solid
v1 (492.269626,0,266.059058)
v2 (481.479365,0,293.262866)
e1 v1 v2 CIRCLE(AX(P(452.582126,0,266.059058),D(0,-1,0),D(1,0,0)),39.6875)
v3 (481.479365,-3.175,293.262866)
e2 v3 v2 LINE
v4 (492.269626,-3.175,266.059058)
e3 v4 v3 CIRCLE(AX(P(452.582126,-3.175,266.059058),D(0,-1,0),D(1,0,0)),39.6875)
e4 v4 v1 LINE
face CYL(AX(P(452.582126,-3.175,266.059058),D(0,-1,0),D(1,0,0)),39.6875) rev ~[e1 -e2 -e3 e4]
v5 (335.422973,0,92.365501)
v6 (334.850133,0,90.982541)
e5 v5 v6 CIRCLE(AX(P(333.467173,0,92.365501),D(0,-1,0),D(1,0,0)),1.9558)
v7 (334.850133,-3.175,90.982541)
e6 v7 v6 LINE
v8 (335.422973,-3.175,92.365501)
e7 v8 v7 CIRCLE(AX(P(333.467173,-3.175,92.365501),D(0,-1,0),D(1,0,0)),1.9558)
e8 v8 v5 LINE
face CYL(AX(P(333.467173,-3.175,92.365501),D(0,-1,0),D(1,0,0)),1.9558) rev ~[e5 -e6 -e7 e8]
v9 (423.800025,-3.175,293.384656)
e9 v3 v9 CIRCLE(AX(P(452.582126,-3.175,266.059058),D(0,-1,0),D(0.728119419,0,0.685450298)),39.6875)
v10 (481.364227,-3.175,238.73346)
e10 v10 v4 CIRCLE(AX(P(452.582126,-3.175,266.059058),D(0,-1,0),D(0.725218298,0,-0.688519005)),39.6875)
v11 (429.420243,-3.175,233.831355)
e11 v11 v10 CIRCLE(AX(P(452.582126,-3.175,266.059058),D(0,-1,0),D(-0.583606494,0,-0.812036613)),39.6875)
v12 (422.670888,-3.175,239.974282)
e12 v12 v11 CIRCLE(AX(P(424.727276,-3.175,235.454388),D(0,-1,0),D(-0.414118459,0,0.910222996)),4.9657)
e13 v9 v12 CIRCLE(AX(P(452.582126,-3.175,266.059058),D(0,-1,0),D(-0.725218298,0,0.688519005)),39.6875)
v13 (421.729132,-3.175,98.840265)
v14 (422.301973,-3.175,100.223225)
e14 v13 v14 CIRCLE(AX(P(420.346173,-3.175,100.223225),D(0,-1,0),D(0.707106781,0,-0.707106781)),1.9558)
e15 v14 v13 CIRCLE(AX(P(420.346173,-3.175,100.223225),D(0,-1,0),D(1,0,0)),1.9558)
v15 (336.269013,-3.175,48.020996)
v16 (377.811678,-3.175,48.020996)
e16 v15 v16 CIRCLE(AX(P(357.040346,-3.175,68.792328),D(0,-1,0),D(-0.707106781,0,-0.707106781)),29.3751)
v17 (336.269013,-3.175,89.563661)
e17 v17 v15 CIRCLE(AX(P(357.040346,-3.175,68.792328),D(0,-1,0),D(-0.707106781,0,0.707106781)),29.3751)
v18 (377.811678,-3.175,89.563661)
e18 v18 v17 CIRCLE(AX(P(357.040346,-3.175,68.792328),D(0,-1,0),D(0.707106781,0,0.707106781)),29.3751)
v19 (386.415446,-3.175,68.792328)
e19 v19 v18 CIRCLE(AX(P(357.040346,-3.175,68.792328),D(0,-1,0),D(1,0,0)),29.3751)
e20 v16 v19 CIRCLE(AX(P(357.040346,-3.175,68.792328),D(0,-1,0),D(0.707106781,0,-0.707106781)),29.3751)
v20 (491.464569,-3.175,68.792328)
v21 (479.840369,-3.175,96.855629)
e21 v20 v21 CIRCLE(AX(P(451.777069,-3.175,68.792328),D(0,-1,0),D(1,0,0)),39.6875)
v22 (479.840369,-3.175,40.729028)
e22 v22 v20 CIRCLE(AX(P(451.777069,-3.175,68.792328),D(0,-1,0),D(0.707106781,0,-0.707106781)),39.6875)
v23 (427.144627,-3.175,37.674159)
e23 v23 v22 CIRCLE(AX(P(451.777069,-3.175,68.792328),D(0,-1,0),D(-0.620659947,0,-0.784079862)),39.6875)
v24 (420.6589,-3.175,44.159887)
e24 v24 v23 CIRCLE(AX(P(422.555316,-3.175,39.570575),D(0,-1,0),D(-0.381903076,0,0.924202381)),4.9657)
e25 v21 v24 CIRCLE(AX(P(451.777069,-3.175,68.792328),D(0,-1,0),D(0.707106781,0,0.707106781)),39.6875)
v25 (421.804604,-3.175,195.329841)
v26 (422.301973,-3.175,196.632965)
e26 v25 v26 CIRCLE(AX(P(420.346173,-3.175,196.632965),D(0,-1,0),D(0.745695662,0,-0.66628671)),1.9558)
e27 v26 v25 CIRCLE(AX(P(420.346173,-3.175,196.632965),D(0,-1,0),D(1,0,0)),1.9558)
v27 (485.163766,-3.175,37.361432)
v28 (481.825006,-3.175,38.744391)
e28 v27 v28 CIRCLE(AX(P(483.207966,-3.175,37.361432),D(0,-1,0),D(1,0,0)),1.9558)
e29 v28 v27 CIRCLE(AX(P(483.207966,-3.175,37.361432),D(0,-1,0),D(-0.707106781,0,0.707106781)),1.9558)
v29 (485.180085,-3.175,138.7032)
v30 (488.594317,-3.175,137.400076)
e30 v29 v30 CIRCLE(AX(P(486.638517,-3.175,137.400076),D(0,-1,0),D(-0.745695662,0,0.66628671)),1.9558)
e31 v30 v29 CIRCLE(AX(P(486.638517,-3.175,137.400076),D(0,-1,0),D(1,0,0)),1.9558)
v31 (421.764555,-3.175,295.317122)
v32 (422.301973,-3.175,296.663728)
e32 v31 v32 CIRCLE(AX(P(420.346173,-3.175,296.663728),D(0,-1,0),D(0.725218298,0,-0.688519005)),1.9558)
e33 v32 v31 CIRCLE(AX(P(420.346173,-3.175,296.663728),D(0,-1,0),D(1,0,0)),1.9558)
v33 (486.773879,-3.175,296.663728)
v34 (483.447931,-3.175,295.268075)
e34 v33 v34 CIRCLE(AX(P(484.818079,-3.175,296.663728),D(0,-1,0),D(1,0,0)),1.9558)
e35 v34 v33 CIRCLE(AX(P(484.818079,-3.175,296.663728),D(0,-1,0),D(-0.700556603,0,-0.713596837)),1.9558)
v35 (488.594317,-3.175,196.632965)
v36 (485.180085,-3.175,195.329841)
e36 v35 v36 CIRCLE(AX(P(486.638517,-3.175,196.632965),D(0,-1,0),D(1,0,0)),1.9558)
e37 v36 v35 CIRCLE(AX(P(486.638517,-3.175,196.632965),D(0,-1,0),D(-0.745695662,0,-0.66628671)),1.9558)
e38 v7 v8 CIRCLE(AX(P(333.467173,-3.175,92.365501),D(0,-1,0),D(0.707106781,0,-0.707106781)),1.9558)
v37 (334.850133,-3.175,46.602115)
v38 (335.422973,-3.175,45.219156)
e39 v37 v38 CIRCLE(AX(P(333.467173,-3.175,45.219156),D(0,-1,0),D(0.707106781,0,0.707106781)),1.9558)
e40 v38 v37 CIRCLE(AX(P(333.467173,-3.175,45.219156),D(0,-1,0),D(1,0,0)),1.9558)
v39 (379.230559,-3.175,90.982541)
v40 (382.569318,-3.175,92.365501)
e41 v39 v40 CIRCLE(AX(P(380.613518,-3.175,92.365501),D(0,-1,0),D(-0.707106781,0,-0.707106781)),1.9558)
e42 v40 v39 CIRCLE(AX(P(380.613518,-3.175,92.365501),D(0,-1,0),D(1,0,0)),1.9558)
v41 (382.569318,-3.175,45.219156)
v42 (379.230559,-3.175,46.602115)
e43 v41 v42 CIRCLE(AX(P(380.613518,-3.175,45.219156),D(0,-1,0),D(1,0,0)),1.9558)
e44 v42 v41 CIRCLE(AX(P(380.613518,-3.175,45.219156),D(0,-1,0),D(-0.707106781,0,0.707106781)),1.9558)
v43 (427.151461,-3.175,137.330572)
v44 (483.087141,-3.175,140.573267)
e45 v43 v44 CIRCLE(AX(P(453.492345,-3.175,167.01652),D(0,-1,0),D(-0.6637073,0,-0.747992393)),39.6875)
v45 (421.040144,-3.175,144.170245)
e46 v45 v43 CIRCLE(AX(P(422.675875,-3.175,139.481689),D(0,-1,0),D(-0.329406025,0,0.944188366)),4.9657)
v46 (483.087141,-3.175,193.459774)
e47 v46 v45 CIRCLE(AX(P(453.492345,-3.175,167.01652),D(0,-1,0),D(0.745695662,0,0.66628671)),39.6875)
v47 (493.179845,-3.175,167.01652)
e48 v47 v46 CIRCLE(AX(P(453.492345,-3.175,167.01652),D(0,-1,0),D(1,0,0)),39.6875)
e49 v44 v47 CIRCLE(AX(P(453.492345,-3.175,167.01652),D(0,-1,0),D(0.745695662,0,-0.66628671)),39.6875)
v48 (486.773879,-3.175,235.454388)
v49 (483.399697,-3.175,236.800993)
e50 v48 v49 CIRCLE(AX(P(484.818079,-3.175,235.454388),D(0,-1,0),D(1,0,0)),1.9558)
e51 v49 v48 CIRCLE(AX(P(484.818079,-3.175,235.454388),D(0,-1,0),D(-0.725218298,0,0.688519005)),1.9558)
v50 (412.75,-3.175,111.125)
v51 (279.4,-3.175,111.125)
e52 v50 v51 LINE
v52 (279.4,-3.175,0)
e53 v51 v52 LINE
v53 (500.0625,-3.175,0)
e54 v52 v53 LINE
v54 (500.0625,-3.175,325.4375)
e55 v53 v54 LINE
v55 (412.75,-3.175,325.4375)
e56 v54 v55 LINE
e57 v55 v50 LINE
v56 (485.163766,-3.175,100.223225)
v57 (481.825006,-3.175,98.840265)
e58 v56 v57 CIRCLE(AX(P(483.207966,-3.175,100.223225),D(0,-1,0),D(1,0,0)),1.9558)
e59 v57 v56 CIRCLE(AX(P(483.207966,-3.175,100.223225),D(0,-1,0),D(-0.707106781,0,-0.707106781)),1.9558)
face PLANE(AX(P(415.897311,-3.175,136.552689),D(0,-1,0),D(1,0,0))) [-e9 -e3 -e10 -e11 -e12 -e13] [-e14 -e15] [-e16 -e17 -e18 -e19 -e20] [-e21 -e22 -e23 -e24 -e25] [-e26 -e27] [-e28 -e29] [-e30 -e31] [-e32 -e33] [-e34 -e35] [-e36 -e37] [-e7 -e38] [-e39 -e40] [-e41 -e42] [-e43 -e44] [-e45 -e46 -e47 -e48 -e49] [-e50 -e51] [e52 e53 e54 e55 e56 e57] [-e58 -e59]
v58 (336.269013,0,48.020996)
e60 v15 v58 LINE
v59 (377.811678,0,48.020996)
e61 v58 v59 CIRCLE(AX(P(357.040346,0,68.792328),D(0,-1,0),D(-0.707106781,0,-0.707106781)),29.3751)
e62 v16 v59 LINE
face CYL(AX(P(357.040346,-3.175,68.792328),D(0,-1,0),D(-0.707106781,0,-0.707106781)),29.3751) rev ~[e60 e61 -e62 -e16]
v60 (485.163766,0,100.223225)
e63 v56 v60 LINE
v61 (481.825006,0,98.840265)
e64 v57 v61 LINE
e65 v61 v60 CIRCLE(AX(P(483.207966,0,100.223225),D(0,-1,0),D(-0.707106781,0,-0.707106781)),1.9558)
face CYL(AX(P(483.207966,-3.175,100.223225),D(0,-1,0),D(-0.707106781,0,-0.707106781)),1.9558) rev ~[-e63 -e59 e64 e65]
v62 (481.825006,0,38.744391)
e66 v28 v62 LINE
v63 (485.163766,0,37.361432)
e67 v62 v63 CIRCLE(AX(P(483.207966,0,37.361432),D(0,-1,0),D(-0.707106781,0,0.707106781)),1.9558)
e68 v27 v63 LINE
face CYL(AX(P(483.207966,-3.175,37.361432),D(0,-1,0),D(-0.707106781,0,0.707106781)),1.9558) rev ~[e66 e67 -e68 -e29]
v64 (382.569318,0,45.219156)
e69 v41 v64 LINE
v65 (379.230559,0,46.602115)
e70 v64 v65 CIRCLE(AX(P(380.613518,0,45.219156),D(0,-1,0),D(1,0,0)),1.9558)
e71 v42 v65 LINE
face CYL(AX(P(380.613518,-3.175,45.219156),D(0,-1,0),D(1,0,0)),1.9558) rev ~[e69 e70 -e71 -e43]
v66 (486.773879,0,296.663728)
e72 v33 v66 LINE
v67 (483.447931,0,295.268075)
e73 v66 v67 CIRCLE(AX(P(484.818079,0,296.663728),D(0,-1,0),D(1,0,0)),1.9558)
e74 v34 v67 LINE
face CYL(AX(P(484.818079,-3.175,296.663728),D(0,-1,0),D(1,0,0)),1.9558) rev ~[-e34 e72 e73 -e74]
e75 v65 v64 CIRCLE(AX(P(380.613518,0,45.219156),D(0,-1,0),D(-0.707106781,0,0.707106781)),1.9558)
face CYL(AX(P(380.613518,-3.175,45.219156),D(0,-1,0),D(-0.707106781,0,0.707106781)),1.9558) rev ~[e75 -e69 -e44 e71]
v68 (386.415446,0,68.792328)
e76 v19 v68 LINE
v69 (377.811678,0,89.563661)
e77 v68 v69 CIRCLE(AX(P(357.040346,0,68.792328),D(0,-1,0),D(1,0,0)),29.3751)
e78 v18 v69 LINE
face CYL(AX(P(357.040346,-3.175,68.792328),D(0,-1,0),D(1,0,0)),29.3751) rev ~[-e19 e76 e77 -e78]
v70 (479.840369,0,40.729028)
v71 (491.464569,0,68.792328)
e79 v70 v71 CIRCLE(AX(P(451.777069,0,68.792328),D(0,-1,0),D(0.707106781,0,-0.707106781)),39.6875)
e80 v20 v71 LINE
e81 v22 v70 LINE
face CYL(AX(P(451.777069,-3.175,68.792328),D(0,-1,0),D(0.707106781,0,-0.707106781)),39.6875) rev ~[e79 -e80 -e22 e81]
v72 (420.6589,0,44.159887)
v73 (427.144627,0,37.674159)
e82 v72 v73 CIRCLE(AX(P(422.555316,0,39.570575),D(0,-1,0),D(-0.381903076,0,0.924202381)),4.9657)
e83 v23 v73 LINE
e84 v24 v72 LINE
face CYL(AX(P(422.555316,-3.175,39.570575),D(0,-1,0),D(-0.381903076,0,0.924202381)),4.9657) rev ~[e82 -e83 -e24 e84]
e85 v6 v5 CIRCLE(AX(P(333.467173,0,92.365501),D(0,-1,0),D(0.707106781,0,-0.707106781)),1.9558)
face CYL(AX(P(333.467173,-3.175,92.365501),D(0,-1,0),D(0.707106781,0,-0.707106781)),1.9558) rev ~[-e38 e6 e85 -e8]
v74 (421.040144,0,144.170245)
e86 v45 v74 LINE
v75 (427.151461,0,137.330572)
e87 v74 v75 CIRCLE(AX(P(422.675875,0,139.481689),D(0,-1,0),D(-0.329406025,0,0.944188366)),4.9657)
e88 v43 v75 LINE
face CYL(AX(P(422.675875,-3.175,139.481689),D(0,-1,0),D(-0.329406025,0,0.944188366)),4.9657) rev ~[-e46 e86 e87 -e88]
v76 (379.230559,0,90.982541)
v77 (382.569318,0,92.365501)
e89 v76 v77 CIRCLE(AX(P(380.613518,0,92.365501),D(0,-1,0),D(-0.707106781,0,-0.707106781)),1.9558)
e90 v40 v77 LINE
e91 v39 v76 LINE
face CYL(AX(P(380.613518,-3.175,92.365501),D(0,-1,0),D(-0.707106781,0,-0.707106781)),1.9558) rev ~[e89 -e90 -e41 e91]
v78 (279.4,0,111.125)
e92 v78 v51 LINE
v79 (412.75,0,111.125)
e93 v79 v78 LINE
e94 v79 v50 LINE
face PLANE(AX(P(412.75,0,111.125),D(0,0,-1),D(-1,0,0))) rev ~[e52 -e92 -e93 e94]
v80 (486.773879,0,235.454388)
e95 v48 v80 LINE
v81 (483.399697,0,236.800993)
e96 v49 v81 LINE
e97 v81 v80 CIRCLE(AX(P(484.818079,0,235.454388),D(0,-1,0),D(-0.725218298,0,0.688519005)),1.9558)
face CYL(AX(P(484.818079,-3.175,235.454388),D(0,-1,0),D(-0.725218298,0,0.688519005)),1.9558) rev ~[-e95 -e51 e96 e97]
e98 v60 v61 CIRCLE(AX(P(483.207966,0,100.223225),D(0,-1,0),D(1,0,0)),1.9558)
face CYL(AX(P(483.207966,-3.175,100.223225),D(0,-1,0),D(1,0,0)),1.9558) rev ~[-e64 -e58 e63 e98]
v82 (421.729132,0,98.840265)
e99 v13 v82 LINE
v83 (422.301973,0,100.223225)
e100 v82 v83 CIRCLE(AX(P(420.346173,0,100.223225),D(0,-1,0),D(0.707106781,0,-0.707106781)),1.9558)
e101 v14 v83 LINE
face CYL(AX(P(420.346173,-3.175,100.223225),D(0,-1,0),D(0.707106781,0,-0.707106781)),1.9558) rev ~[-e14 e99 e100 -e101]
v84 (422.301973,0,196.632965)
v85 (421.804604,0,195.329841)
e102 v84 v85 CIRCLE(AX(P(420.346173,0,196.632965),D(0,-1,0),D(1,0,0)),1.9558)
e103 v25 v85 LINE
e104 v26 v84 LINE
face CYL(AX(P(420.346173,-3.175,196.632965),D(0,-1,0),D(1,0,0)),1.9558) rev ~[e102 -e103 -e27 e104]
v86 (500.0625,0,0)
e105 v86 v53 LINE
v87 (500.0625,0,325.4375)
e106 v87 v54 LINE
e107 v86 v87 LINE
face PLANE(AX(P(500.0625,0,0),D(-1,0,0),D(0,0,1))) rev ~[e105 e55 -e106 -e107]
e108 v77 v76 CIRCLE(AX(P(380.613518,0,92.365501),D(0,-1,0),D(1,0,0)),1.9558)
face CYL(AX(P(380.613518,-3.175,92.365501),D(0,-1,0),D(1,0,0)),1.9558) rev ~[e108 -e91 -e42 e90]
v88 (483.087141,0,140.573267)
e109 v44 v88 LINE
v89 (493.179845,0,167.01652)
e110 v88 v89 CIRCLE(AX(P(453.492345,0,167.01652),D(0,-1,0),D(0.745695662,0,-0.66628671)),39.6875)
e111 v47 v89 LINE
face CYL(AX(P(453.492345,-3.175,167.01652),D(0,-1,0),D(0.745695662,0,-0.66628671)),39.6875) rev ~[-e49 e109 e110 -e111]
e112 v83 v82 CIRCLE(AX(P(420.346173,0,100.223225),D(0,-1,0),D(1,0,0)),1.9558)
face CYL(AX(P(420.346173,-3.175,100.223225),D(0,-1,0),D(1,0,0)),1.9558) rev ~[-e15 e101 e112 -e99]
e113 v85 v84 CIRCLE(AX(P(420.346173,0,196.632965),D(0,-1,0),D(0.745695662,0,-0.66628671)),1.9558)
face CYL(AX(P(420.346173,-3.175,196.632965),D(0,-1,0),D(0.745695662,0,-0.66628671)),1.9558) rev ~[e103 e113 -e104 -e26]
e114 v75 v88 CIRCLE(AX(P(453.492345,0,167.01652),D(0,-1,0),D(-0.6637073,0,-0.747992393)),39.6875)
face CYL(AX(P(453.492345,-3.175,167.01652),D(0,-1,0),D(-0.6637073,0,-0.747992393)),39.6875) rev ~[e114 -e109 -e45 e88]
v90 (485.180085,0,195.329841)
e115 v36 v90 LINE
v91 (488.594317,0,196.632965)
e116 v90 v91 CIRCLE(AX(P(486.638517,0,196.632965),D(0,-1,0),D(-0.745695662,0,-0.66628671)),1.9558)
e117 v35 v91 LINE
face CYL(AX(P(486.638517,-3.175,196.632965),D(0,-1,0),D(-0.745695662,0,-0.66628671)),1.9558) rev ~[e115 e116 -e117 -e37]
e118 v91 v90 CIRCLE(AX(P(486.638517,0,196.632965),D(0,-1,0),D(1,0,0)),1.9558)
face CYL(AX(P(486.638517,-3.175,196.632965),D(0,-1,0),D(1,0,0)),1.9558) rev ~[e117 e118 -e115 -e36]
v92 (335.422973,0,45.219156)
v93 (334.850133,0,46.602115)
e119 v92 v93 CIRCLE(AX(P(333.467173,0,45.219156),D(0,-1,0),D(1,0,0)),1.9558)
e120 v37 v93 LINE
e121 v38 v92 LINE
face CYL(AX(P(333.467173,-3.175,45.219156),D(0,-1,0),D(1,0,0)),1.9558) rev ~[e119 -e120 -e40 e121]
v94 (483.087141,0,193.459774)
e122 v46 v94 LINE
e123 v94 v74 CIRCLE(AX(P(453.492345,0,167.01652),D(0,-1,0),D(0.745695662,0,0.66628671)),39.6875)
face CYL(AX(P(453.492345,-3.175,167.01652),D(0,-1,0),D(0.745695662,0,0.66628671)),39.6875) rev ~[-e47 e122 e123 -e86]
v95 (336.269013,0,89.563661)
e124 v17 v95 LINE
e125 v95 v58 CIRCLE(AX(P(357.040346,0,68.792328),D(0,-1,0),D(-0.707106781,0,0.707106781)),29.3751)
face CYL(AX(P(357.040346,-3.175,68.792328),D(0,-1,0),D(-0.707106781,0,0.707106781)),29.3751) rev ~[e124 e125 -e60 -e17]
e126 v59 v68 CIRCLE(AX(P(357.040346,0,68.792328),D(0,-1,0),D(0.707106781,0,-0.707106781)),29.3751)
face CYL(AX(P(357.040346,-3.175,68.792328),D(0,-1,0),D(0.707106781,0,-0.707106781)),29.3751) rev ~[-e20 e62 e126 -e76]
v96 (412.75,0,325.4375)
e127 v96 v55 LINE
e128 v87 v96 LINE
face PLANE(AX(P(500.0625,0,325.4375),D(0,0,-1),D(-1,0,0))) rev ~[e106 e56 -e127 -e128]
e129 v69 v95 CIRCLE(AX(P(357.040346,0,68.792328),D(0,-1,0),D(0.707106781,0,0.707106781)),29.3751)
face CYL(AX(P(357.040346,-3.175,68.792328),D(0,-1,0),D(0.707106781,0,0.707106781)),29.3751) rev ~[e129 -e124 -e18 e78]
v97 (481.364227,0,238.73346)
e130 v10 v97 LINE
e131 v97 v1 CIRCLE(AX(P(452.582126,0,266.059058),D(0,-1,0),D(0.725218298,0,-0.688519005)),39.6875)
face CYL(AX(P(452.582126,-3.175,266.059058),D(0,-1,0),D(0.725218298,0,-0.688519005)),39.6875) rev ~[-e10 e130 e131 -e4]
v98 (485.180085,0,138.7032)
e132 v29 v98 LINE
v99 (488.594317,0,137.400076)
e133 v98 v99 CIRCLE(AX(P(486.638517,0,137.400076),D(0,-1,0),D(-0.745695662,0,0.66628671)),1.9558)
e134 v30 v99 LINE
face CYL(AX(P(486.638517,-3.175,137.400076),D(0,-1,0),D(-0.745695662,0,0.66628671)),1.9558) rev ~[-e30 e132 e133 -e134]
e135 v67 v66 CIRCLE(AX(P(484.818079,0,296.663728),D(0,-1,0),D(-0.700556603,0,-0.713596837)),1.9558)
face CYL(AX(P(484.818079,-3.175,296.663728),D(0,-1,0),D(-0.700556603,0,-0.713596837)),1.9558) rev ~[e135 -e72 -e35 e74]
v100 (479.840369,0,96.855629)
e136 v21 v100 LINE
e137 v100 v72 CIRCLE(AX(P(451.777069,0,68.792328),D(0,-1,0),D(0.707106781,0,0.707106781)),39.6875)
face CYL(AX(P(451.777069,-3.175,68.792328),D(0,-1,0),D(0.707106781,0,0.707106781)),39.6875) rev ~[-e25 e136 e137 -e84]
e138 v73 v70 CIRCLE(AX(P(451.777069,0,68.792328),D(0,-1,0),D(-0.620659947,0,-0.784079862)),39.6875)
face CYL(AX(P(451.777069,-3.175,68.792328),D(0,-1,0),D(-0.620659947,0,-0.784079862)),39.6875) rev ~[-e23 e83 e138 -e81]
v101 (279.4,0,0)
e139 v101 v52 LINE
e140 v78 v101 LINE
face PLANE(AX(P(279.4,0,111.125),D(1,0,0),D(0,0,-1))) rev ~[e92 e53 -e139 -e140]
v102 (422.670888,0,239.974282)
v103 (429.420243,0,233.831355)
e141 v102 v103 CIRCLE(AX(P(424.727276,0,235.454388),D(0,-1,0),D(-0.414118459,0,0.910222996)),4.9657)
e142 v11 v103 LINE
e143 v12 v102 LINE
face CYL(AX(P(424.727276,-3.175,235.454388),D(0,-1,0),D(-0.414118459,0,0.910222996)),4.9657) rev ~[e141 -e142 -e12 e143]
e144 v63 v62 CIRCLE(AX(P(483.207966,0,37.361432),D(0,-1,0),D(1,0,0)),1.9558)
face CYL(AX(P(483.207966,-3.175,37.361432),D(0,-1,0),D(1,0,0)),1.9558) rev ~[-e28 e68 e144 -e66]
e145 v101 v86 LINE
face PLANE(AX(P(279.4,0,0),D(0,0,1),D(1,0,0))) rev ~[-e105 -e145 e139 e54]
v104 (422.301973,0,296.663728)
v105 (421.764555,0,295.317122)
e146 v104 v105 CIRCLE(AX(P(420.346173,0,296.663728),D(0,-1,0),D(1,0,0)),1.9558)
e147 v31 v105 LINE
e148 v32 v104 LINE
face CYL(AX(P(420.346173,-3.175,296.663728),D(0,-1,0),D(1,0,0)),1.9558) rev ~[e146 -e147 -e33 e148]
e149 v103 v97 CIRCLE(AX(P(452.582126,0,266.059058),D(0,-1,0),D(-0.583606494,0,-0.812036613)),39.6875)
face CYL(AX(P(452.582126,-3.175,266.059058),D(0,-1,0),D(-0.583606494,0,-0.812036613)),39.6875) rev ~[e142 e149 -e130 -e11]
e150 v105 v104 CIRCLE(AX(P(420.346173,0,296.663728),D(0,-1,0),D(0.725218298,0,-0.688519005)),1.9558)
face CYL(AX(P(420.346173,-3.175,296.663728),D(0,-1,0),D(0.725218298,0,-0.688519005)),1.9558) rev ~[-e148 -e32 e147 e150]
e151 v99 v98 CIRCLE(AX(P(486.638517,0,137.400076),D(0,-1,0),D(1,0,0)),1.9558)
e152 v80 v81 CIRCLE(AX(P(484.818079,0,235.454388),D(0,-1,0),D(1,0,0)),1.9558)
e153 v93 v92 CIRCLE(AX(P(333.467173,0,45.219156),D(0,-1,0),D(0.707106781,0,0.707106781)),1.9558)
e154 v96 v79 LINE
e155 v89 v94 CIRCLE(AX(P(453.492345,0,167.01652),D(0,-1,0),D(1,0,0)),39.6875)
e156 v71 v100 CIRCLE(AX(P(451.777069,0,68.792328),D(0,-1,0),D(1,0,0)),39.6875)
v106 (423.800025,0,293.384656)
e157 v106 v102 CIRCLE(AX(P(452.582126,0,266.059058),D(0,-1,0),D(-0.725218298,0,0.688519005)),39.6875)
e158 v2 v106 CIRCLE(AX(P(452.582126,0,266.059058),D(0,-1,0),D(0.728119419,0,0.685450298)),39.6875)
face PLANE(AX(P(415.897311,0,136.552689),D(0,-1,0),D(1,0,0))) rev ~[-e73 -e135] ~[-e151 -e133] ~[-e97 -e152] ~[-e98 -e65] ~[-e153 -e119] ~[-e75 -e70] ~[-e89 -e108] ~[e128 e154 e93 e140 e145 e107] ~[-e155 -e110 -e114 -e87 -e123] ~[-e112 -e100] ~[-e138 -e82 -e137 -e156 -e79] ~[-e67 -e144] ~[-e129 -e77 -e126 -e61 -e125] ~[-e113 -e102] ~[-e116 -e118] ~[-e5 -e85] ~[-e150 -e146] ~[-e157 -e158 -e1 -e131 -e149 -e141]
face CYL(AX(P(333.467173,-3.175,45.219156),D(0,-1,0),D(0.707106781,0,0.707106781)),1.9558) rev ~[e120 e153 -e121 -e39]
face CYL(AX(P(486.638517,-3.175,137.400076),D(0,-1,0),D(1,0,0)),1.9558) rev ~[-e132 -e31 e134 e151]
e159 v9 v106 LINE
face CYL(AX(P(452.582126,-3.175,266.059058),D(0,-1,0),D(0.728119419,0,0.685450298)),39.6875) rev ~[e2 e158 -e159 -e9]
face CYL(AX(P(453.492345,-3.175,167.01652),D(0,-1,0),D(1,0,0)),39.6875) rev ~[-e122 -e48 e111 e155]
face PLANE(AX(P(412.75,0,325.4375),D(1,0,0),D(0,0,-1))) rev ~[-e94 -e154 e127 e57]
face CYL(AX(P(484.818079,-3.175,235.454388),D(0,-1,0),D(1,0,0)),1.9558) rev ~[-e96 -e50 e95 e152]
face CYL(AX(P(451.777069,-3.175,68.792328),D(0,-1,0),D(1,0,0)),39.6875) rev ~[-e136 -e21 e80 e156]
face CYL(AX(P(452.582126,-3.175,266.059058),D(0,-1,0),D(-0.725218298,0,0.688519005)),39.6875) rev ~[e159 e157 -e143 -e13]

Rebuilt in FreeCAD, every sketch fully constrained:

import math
import FreeCAD as App
import Part
import Sketcher
Q = App.Units.Quantity


def add_polygon(sketch, points):
    """Adds a closed chain of lines whose ends are joined by coincident constraints."""
    first, n = sketch.GeometryCount, len(points)
    for a, b in zip(points, points[1:] + points[:1]):
        sketch.addGeometry(Part.LineSegment(App.Vector(*a, 0), App.Vector(*b, 0)), False)
    for i in range(n):
        sketch.addConstraint(Sketcher.Constraint("Coincident", first + i, 2, first + (i + 1) % n, 1))

doc = App.newDocument("Part")
body = doc.addObject("PartDesign::Body", "Body")

sketch1 = doc.addObject("Sketcher::SketchObject", "Sketch")
body.addObject(sketch1)
sketch1.AttachmentSupport = (doc.XZ_Plane, [""])
sketch1.MapMode = "FlatFace"
add_polygon(sketch1, [(279, 111), (279, 0), (500, 0), (500, 325), (413, 325), (413, 111)])
sketch1.addConstraint(Sketcher.Constraint("Vertical", 0))
sketch1.addConstraint(Sketcher.Constraint("Horizontal", 1))
sketch1.addConstraint(Sketcher.Constraint("Vertical", 2))
sketch1.addConstraint(Sketcher.Constraint("Horizontal", 3))
sketch1.addConstraint(Sketcher.Constraint("Vertical", 4))
sketch1.addConstraint(Sketcher.Constraint("Horizontal", 5))
sketch1.addConstraint(Sketcher.Constraint("PointOnObject", 0, 2, -1))
sketch1.addConstraint(Sketcher.Constraint("DistanceX", -1, 1, 0, 2, Q("11 in")))
sketch1.addConstraint(Sketcher.Constraint("DistanceX", 5, 2, 5, 1, Q("5.25 in")))
sketch1.addConstraint(Sketcher.Constraint("DistanceX", 1, 1, 1, 2, Q("8.6875 in")))
sketch1.addConstraint(Sketcher.Constraint("DistanceY", 0, 2, 0, 1, Q("4.375 in")))
sketch1.addConstraint(Sketcher.Constraint("DistanceY", 2, 1, 2, 2, Q("12.8125 in")))
pad1 = doc.addObject("PartDesign::Pad", "Pad")
body.addObject(pad1)
pad1.Profile = sketch1
pad1.Length = Q("0.125 in")

sketch2 = doc.addObject("Sketcher::SketchObject", "Sketch001")
body.addObject(sketch2)
sketch2.AttachmentSupport = (doc.XZ_Plane, [""])
sketch2.MapMode = "FlatFace"
sketch2.AttachmentOffset = App.Placement(App.Vector(0, 0, 0.125 * 25.4), App.Rotation())
sketch2.addGeometry(Part.ArcOfCircle(Part.Circle(App.Vector(452.6, 266.1, 0), App.Vector(0, 0, 1), 39.7), math.radians(136), math.radians(221)), False)
sketch2.addGeometry(Part.ArcOfCircle(Part.Circle(App.Vector(424.7, 235.5, 0), App.Vector(0, 0, 1), 5), math.radians(114), math.radians(341)), False)
sketch2.addGeometry(Part.ArcOfCircle(Part.Circle(App.Vector(452.6, 266.1, 0), App.Vector(0, 0, 1), 39.7), math.radians(-126), math.radians(-44)), False)
sketch2.addGeometry(Part.ArcOfCircle(Part.Circle(App.Vector(452.6, 266.1, 0), App.Vector(0, 0, 1), 39.7), math.radians(-44), math.radians(0)), False)
sketch2.addGeometry(Part.ArcOfCircle(Part.Circle(App.Vector(452.6, 266.1, 0), App.Vector(0, 0, 1), 39.7), math.radians(0), math.radians(43)), False)
sketch2.addGeometry(Part.ArcOfCircle(Part.Circle(App.Vector(452.6, 266.1, 0), App.Vector(0, 0, 1), 39.7), math.radians(43), math.radians(136)), False)
sketch2.addGeometry(Part.ArcOfCircle(Part.Circle(App.Vector(484.8, 235.5, 0), App.Vector(0, 0, 1), 2), math.radians(0), math.radians(136)), False)
sketch2.addGeometry(Part.ArcOfCircle(Part.Circle(App.Vector(484.8, 235.5, 0), App.Vector(0, 0, 1), 2), math.radians(136), math.radians(360)), False)
sketch2.addGeometry(Part.ArcOfCircle(Part.Circle(App.Vector(420.3, 296.7, 0), App.Vector(0, 0, 1), 2), math.radians(0), math.radians(316)), False)
sketch2.addGeometry(Part.ArcOfCircle(Part.Circle(App.Vector(420.3, 296.7, 0), App.Vector(0, 0, 1), 2), math.radians(-44), math.radians(0)), False)
sketch2.addGeometry(Part.ArcOfCircle(Part.Circle(App.Vector(484.8, 296.7, 0), App.Vector(0, 0, 1), 2), math.radians(0), math.radians(226)), False)
sketch2.addGeometry(Part.ArcOfCircle(Part.Circle(App.Vector(484.8, 296.7, 0), App.Vector(0, 0, 1), 2), math.radians(-134), math.radians(0)), False)
sketch2.addGeometry(Part.ArcOfCircle(Part.Circle(App.Vector(453.5, 167, 0), App.Vector(0, 0, 1), 39.7), math.radians(42), math.radians(215)), False)
sketch2.addGeometry(Part.ArcOfCircle(Part.Circle(App.Vector(422.7, 139.5, 0), App.Vector(0, 0, 1), 5), math.radians(109), math.radians(334)), False)
sketch2.addGeometry(Part.ArcOfCircle(Part.Circle(App.Vector(453.5, 167, 0), App.Vector(0, 0, 1), 39.7), math.radians(-132), math.radians(-42)), False)
sketch2.addGeometry(Part.ArcOfCircle(Part.Circle(App.Vector(453.5, 167, 0), App.Vector(0, 0, 1), 39.7), math.radians(-42), math.radians(0)), False)
sketch2.addGeometry(Part.ArcOfCircle(Part.Circle(App.Vector(453.5, 167, 0), App.Vector(0, 0, 1), 39.7), math.radians(0), math.radians(42)), False)
sketch2.addGeometry(Part.ArcOfCircle(Part.Circle(App.Vector(486.6, 137.4, 0), App.Vector(0, 0, 1), 2), math.radians(0), math.radians(138)), False)
sketch2.addGeometry(Part.ArcOfCircle(Part.Circle(App.Vector(486.6, 137.4, 0), App.Vector(0, 0, 1), 2), math.radians(138), math.radians(360)), False)
sketch2.addGeometry(Part.ArcOfCircle(Part.Circle(App.Vector(420.3, 196.6, 0), App.Vector(0, 0, 1), 2), math.radians(0), math.radians(318)), False)
sketch2.addGeometry(Part.ArcOfCircle(Part.Circle(App.Vector(420.3, 196.6, 0), App.Vector(0, 0, 1), 2), math.radians(-42), math.radians(0)), False)
sketch2.addGeometry(Part.ArcOfCircle(Part.Circle(App.Vector(486.6, 196.6, 0), App.Vector(0, 0, 1), 2), math.radians(0), math.radians(222)), False)
sketch2.addGeometry(Part.ArcOfCircle(Part.Circle(App.Vector(486.6, 196.6, 0), App.Vector(0, 0, 1), 2), math.radians(-138), math.radians(0)), False)
sketch2.addGeometry(Part.ArcOfCircle(Part.Circle(App.Vector(451.8, 68.8, 0), App.Vector(0, 0, 1), 39.7), math.radians(45), math.radians(218)), False)
sketch2.addGeometry(Part.ArcOfCircle(Part.Circle(App.Vector(422.6, 39.6, 0), App.Vector(0, 0, 1), 5), math.radians(112), math.radians(338)), False)
sketch2.addGeometry(Part.ArcOfCircle(Part.Circle(App.Vector(451.8, 68.8, 0), App.Vector(0, 0, 1), 39.7), math.radians(-128), math.radians(-45)), False)
sketch2.addGeometry(Part.ArcOfCircle(Part.Circle(App.Vector(451.8, 68.8, 0), App.Vector(0, 0, 1), 39.7), math.radians(-45), math.radians(0)), False)
sketch2.addGeometry(Part.ArcOfCircle(Part.Circle(App.Vector(451.8, 68.8, 0), App.Vector(0, 0, 1), 39.7), math.radians(0), math.radians(45)), False)
sketch2.addGeometry(Part.ArcOfCircle(Part.Circle(App.Vector(483.2, 37.4, 0), App.Vector(0, 0, 1), 2), math.radians(0), math.radians(135)), False)
sketch2.addGeometry(Part.ArcOfCircle(Part.Circle(App.Vector(483.2, 37.4, 0), App.Vector(0, 0, 1), 2), math.radians(135), math.radians(360)), False)
sketch2.addGeometry(Part.ArcOfCircle(Part.Circle(App.Vector(420.3, 100.2, 0), App.Vector(0, 0, 1), 2), math.radians(0), math.radians(315)), False)
sketch2.addGeometry(Part.ArcOfCircle(Part.Circle(App.Vector(420.3, 100.2, 0), App.Vector(0, 0, 1), 2), math.radians(-45), math.radians(0)), False)
sketch2.addGeometry(Part.ArcOfCircle(Part.Circle(App.Vector(483.2, 100.2, 0), App.Vector(0, 0, 1), 2), math.radians(0), math.radians(225)), False)
sketch2.addGeometry(Part.ArcOfCircle(Part.Circle(App.Vector(483.2, 100.2, 0), App.Vector(0, 0, 1), 2), math.radians(-135), math.radians(0)), False)
sketch2.addGeometry(Part.ArcOfCircle(Part.Circle(App.Vector(357, 68.8, 0), App.Vector(0, 0, 1), 29.4), math.radians(-45), math.radians(0)), False)
sketch2.addGeometry(Part.ArcOfCircle(Part.Circle(App.Vector(357, 68.8, 0), App.Vector(0, 0, 1), 29.4), math.radians(0), math.radians(45)), False)
sketch2.addGeometry(Part.ArcOfCircle(Part.Circle(App.Vector(357, 68.8, 0), App.Vector(0, 0, 1), 29.4), math.radians(45), math.radians(135)), False)
sketch2.addGeometry(Part.ArcOfCircle(Part.Circle(App.Vector(357, 68.8, 0), App.Vector(0, 0, 1), 29.4), math.radians(135), math.radians(225)), False)
sketch2.addGeometry(Part.ArcOfCircle(Part.Circle(App.Vector(357, 68.8, 0), App.Vector(0, 0, 1), 29.4), math.radians(-135), math.radians(-45)), False)
sketch2.addGeometry(Part.ArcOfCircle(Part.Circle(App.Vector(380.6, 45.2, 0), App.Vector(0, 0, 1), 2), math.radians(0), math.radians(135)), False)
sketch2.addGeometry(Part.ArcOfCircle(Part.Circle(App.Vector(380.6, 45.2, 0), App.Vector(0, 0, 1), 2), math.radians(135), math.radians(360)), False)
sketch2.addGeometry(Part.ArcOfCircle(Part.Circle(App.Vector(333.5, 45.2, 0), App.Vector(0, 0, 1), 2), math.radians(0), math.radians(45)), False)
sketch2.addGeometry(Part.ArcOfCircle(Part.Circle(App.Vector(333.5, 45.2, 0), App.Vector(0, 0, 1), 2), math.radians(45), math.radians(360)), False)
sketch2.addGeometry(Part.ArcOfCircle(Part.Circle(App.Vector(333.5, 92.4, 0), App.Vector(0, 0, 1), 2), math.radians(0), math.radians(315)), False)
sketch2.addGeometry(Part.ArcOfCircle(Part.Circle(App.Vector(333.5, 92.4, 0), App.Vector(0, 0, 1), 2), math.radians(-45), math.radians(0)), False)
sketch2.addGeometry(Part.ArcOfCircle(Part.Circle(App.Vector(380.6, 92.4, 0), App.Vector(0, 0, 1), 2), math.radians(0), math.radians(225)), False)
sketch2.addGeometry(Part.ArcOfCircle(Part.Circle(App.Vector(380.6, 92.4, 0), App.Vector(0, 0, 1), 2), math.radians(-135), math.radians(0)), False)
sketch2.addConstraint(Sketcher.Constraint("Coincident", 0, 2, 1, 1))
sketch2.addConstraint(Sketcher.Constraint("Coincident", 1, 2, 2, 1))
sketch2.addConstraint(Sketcher.Constraint("Tangent", 2, 2, 3, 1))
sketch2.addConstraint(Sketcher.Constraint("Tangent", 3, 2, 4, 1))
sketch2.addConstraint(Sketcher.Constraint("Tangent", 4, 2, 5, 1))
sketch2.addConstraint(Sketcher.Constraint("Tangent", 5, 2, 0, 1))
sketch2.addConstraint(Sketcher.Constraint("Tangent", 6, 1, 7, 2))
sketch2.addConstraint(Sketcher.Constraint("Coincident", 7, 1, 6, 2))
sketch2.addConstraint(Sketcher.Constraint("Tangent", 8, 1, 9, 2))
sketch2.addConstraint(Sketcher.Constraint("Coincident", 9, 1, 8, 2))
sketch2.addConstraint(Sketcher.Constraint("Tangent", 10, 1, 11, 2))
sketch2.addConstraint(Sketcher.Constraint("Coincident", 11, 1, 10, 2))
sketch2.addConstraint(Sketcher.Constraint("Coincident", 12, 2, 13, 1))
sketch2.addConstraint(Sketcher.Constraint("Coincident", 13, 2, 14, 1))
sketch2.addConstraint(Sketcher.Constraint("Tangent", 14, 2, 15, 1))
sketch2.addConstraint(Sketcher.Constraint("Tangent", 15, 2, 16, 1))
sketch2.addConstraint(Sketcher.Constraint("Tangent", 16, 2, 12, 1))
sketch2.addConstraint(Sketcher.Constraint("Tangent", 17, 1, 18, 2))
sketch2.addConstraint(Sketcher.Constraint("Coincident", 18, 1, 17, 2))
sketch2.addConstraint(Sketcher.Constraint("Tangent", 19, 1, 20, 2))
sketch2.addConstraint(Sketcher.Constraint("Coincident", 20, 1, 19, 2))
sketch2.addConstraint(Sketcher.Constraint("Tangent", 21, 1, 22, 2))
sketch2.addConstraint(Sketcher.Constraint("Coincident", 22, 1, 21, 2))
sketch2.addConstraint(Sketcher.Constraint("Coincident", 23, 2, 24, 1))
sketch2.addConstraint(Sketcher.Constraint("Coincident", 24, 2, 25, 1))
sketch2.addConstraint(Sketcher.Constraint("Tangent", 25, 2, 26, 1))
sketch2.addConstraint(Sketcher.Constraint("Tangent", 26, 2, 27, 1))
sketch2.addConstraint(Sketcher.Constraint("Tangent", 27, 2, 23, 1))
sketch2.addConstraint(Sketcher.Constraint("Tangent", 28, 1, 29, 2))
sketch2.addConstraint(Sketcher.Constraint("Coincident", 29, 1, 28, 2))
sketch2.addConstraint(Sketcher.Constraint("Tangent", 30, 1, 31, 2))
sketch2.addConstraint(Sketcher.Constraint("Coincident", 31, 1, 30, 2))
sketch2.addConstraint(Sketcher.Constraint("Tangent", 32, 1, 33, 2))
sketch2.addConstraint(Sketcher.Constraint("Coincident", 33, 1, 32, 2))
sketch2.addConstraint(Sketcher.Constraint("Tangent", 34, 2, 35, 1))
sketch2.addConstraint(Sketcher.Constraint("Tangent", 35, 2, 36, 1))
sketch2.addConstraint(Sketcher.Constraint("Tangent", 36, 2, 37, 1))
sketch2.addConstraint(Sketcher.Constraint("Tangent", 37, 2, 38, 1))
sketch2.addConstraint(Sketcher.Constraint("Tangent", 38, 2, 34, 1))
sketch2.addConstraint(Sketcher.Constraint("Tangent", 39, 1, 40, 2))
sketch2.addConstraint(Sketcher.Constraint("Coincident", 40, 1, 39, 2))
sketch2.addConstraint(Sketcher.Constraint("Tangent", 41, 1, 42, 2))
sketch2.addConstraint(Sketcher.Constraint("Coincident", 42, 1, 41, 2))
sketch2.addConstraint(Sketcher.Constraint("Tangent", 43, 1, 44, 2))
sketch2.addConstraint(Sketcher.Constraint("Coincident", 44, 1, 43, 2))
sketch2.addConstraint(Sketcher.Constraint("Tangent", 45, 1, 46, 2))
sketch2.addConstraint(Sketcher.Constraint("Coincident", 46, 1, 45, 2))
sketch2.addConstraint(Sketcher.Constraint("Coincident", 2, 3, 0, 3))
sketch2.addConstraint(Sketcher.Constraint("Coincident", 4, 3, 0, 3))
sketch2.addConstraint(Sketcher.Constraint("Coincident", 14, 3, 12, 3))
sketch2.addConstraint(Sketcher.Constraint("Coincident", 25, 3, 23, 3))
sketch2.addConstraint(Sketcher.Constraint("Coincident", 36, 3, 34, 3))
sketch2.addConstraint(Sketcher.Constraint("Equal", 7, 8))
sketch2.addConstraint(Sketcher.Constraint("Equal", 9, 10))
sketch2.addConstraint(Sketcher.Constraint("Equal", 5, 12))
sketch2.addConstraint(Sketcher.Constraint("Equal", 1, 13))
sketch2.addConstraint(Sketcher.Constraint("Equal", 12, 14))
sketch2.addConstraint(Sketcher.Constraint("Equal", 11, 17))
sketch2.addConstraint(Sketcher.Constraint("Equal", 18, 19))
sketch2.addConstraint(Sketcher.Constraint("Equal", 20, 21))
sketch2.addConstraint(Sketcher.Constraint("Equal", 16, 23))
sketch2.addConstraint(Sketcher.Constraint("Equal", 13, 24))
sketch2.addConstraint(Sketcher.Constraint("Equal", 23, 25))
sketch2.addConstraint(Sketcher.Constraint("Equal", 22, 28))
sketch2.addConstraint(Sketcher.Constraint("Equal", 29, 30))
sketch2.addConstraint(Sketcher.Constraint("Equal", 31, 32))
sketch2.addConstraint(Sketcher.Constraint("Equal", 33, 39))
sketch2.addConstraint(Sketcher.Constraint("Equal", 40, 41))
sketch2.addConstraint(Sketcher.Constraint("Equal", 42, 43))
sketch2.addConstraint(Sketcher.Constraint("Equal", 44, 45))
sketch2.addConstraint(Sketcher.Constraint("Horizontal", 1, 3, 6, 3))
sketch2.addConstraint(Sketcher.Constraint("Horizontal", 9, 3, 10, 3))
sketch2.addConstraint(Sketcher.Constraint("Horizontal", 20, 3, 21, 3))
sketch2.addConstraint(Sketcher.Constraint("Horizontal", 31, 3, 32, 3))
sketch2.addConstraint(Sketcher.Constraint("Horizontal", 27, 3, 34, 3))
sketch2.addConstraint(Sketcher.Constraint("Horizontal", 40, 3, 41, 3))
sketch2.addConstraint(Sketcher.Constraint("Horizontal", 44, 3, 45, 3))
sketch2.addConstraint(Sketcher.Constraint("Horizontal", 5, 3, 3, 2))
sketch2.addConstraint(Sketcher.Constraint("Horizontal", 7, 3, 6, 1))
sketch2.addConstraint(Sketcher.Constraint("Horizontal", 11, 3, 8, 1))
sketch2.addConstraint(Sketcher.Constraint("Horizontal", 8, 1, 10, 1))
sketch2.addConstraint(Sketcher.Constraint("Horizontal", 16, 3, 15, 2))
sketch2.addConstraint(Sketcher.Constraint("Horizontal", 18, 3, 17, 1))
sketch2.addConstraint(Sketcher.Constraint("Horizontal", 22, 3, 19, 1))
sketch2.addConstraint(Sketcher.Constraint("Horizontal", 19, 1, 21, 1))
sketch2.addConstraint(Sketcher.Constraint("Horizontal", 20, 1, 22, 1))
sketch2.addConstraint(Sketcher.Constraint("Horizontal", 38, 3, 26, 2))
sketch2.addConstraint(Sketcher.Constraint("Horizontal", 29, 3, 28, 1))
sketch2.addConstraint(Sketcher.Constraint("Horizontal", 33, 3, 30, 1))
sketch2.addConstraint(Sketcher.Constraint("Horizontal", 30, 1, 32, 1))
sketch2.addConstraint(Sketcher.Constraint("Horizontal", 31, 1, 33, 1))
sketch2.addConstraint(Sketcher.Constraint("Horizontal", 26, 2, 34, 2))
sketch2.addConstraint(Sketcher.Constraint("Horizontal", 35, 2, 36, 2))
sketch2.addConstraint(Sketcher.Constraint("Horizontal", 37, 2, 38, 2))
sketch2.addConstraint(Sketcher.Constraint("Horizontal", 42, 3, 39, 1))
sketch2.addConstraint(Sketcher.Constraint("Horizontal", 39, 1, 41, 1))
sketch2.addConstraint(Sketcher.Constraint("Horizontal", 40, 1, 42, 1))
sketch2.addConstraint(Sketcher.Constraint("Horizontal", 46, 3, 43, 1))
sketch2.addConstraint(Sketcher.Constraint("Horizontal", 43, 1, 45, 1))
sketch2.addConstraint(Sketcher.Constraint("Horizontal", 44, 1, 46, 1))
sketch2.addConstraint(Sketcher.Constraint("Vertical", 7, 3, 10, 3))
sketch2.addConstraint(Sketcher.Constraint("Vertical", 9, 3, 19, 3))
sketch2.addConstraint(Sketcher.Constraint("Vertical", 18, 3, 21, 3))
sketch2.addConstraint(Sketcher.Constraint("Vertical", 20, 3, 30, 3))
sketch2.addConstraint(Sketcher.Constraint("Vertical", 29, 3, 32, 3))
sketch2.addConstraint(Sketcher.Constraint("Vertical", 42, 3, 43, 3))
sketch2.addConstraint(Sketcher.Constraint("Vertical", 40, 3, 45, 3))
sketch2.addConstraint(Sketcher.Constraint("Vertical", 14, 2, 16, 2))
sketch2.addConstraint(Sketcher.Constraint("Vertical", 18, 1, 22, 1))
sketch2.addConstraint(Sketcher.Constraint("Vertical", 25, 2, 27, 2))
sketch2.addConstraint(Sketcher.Constraint("Vertical", 29, 1, 33, 1))
sketch2.addConstraint(Sketcher.Constraint("Vertical", 36, 2, 37, 2))
sketch2.addConstraint(Sketcher.Constraint("Vertical", 42, 1, 44, 1))
sketch2.addConstraint(Sketcher.Constraint("Radius", 0, Q("1.5625 in")))
sketch2.addConstraint(Sketcher.Constraint("Radius", 6, Q("0.077 in")))
sketch2.addConstraint(Sketcher.Constraint("Radius", 1, Q("0.1955 in")))
sketch2.addConstraint(Sketcher.Constraint("Radius", 34, Q("1.1565 in")))
sketch2.addConstraint(Sketcher.Constraint("DistanceY", -1, 1, 43, 3, 92.365501))
sketch2.addConstraint(Sketcher.Constraint("DistanceY", -1, 1, 18, 1, 138.7032))
sketch2.addConstraint(Sketcher.Constraint("DistanceX", -1, 1, 23, 2, 420.6589))
sketch2.addConstraint(Sketcher.Constraint("DistanceX", -1, 1, 6, 3, 484.818079))
sketch2.addConstraint(Sketcher.Constraint("DistanceY", -1, 1, 12, 3, 167.01652))
sketch2.addConstraint(Sketcher.Constraint("DistanceY", -1, 1, 13, 3, 139.481689))
sketch2.addConstraint(Sketcher.Constraint("DistanceX", -1, 1, 23, 3, 451.777069))
sketch2.addConstraint(Sketcher.Constraint("DistanceY", -1, 1, 23, 3, 68.792328))
sketch2.addConstraint(Sketcher.Constraint("DistanceY", -1, 1, 28, 3, 37.361432))
sketch2.addConstraint(Sketcher.Constraint("DistanceX", -1, 1, 0, 2, 422.670888))
sketch2.addConstraint(Sketcher.Constraint("DistanceY", -1, 1, 2, 2, 238.73346))
sketch2.addConstraint(Sketcher.Constraint("DistanceX", -1, 1, 11, 1, 483.447931))
sketch2.addConstraint(Sketcher.Constraint("DistanceX", -1, 1, 13, 2, 427.151461))
sketch2.addConstraint(Sketcher.Constraint("DistanceX", -1, 1, 14, 2, 483.087141))
sketch2.addConstraint(Sketcher.Constraint("DistanceY", -1, 1, 20, 1, 195.329841))
sketch2.addConstraint(Sketcher.Constraint("DistanceY", -1, 1, 24, 2, 37.674159))
sketch2.addConstraint(Sketcher.Constraint("DistanceX", -1, 1, 25, 2, 479.840369))
sketch2.addConstraint(Sketcher.Constraint("DistanceY", -1, 1, 29, 1, 38.744391))
sketch2.addConstraint(Sketcher.Constraint("DistanceX", -1, 1, 35, 2, 377.811678))
sketch2.addConstraint(Sketcher.Constraint("DistanceY", -1, 1, 35, 2, 89.563661))
sketch2.addConstraint(Sketcher.Constraint("DistanceX", -1, 1, 40, 1, 379.230559))
sketch2.addConstraint(Sketcher.Constraint("DistanceY", -1, 1, 44, 1, 90.982541))
sketch2.addConstraint(Sketcher.Constraint("DistanceX", -1, 1, 0, 3, 452.582126))
sketch2.addConstraint(Sketcher.Constraint("DistanceY", -1, 1, 0, 3, 266.059058))
sketch2.addConstraint(Sketcher.Constraint("DistanceX", -1, 1, 1, 3, 424.727276))
sketch2.addConstraint(Sketcher.Constraint("DistanceX", -1, 1, 8, 3, 420.346173))
sketch2.addConstraint(Sketcher.Constraint("DistanceY", -1, 1, 8, 3, 296.663728))
sketch2.addConstraint(Sketcher.Constraint("DistanceX", -1, 1, 12, 3, 453.492345))
sketch2.addConstraint(Sketcher.Constraint("DistanceX", -1, 1, 17, 3, 486.638517))
sketch2.addConstraint(Sketcher.Constraint("DistanceY", -1, 1, 17, 3, 137.400076))
sketch2.addConstraint(Sketcher.Constraint("DistanceX", -1, 1, 28, 3, 483.207966))
sketch2.addConstraint(Sketcher.Constraint("DistanceY", -1, 1, 30, 3, 100.223225))
sketch2.addConstraint(Sketcher.Constraint("DistanceY", -1, 1, 39, 3, 45.219156))
sketch2.addConstraint(Sketcher.Constraint("DistanceX", -1, 1, 41, 3, 333.467173))
sketch2.addConstraint(Sketcher.Constraint("DistanceX", -1, 1, 4, 2, 481.479365))
sketch2.addConstraint(Sketcher.Constraint("DistanceX", -1, 1, 5, 2, 423.800025))
sketch2.addConstraint(Sketcher.Constraint("DistanceX", -1, 1, 7, 1, 483.399697))
sketch2.addConstraint(Sketcher.Constraint("DistanceX", -1, 1, 9, 1, 421.764555))
pocket1 = doc.addObject("PartDesign::Pocket", "Pocket")
body.addObject(pocket1)
pocket1.Profile = sketch2
pocket1.Length = Q("0.125 in")

doc.recompute()
